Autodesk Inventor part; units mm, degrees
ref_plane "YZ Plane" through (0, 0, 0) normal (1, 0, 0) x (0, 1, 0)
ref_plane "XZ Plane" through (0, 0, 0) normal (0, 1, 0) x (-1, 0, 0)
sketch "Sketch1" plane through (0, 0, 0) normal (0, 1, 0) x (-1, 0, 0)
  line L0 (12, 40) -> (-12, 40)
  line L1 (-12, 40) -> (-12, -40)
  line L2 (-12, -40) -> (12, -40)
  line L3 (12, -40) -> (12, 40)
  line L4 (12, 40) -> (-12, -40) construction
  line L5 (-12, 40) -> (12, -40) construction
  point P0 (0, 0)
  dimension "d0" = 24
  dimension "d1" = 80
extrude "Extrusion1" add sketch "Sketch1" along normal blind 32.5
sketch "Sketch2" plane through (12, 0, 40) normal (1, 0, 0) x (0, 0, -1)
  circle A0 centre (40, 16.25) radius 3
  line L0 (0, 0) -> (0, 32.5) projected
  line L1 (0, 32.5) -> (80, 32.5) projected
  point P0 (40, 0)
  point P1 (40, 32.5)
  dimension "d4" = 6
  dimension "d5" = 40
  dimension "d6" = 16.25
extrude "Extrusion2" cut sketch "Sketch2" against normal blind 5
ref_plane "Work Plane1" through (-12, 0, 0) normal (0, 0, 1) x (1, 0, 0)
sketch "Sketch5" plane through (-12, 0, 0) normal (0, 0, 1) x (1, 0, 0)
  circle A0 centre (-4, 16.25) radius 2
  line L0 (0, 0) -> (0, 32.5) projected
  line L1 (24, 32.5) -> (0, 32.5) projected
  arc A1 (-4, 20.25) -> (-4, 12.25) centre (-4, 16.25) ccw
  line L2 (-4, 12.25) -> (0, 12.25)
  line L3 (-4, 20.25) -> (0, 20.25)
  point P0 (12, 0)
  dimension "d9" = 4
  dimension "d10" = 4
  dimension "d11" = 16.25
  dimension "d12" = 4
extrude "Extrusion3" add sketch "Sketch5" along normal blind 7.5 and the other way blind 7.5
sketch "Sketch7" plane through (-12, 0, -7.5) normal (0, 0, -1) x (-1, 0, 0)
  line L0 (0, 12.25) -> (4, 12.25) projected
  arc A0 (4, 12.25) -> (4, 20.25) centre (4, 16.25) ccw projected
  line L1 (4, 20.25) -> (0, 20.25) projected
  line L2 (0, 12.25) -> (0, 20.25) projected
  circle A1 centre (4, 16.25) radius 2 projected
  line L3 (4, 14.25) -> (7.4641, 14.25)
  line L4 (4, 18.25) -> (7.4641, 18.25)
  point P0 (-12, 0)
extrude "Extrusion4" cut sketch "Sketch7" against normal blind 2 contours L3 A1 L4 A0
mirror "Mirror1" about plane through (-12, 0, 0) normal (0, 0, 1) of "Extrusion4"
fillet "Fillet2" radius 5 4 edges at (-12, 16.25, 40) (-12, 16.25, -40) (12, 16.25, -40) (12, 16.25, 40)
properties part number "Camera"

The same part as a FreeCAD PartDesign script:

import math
import FreeCAD as App
import Part
import Sketcher
from FreeCAD import Vector


def edges_at(feature, points):
    """Names of the edges that pass closest to the given points."""
    edges = feature.Shape.Edges
    near = lambda p: min(range(len(edges)), key=lambda i: edges[i].distToShape(Part.Vertex(*p))[0])
    return sorted({f"Edge{near(p) + 1}" for p in points})


def add_polygon(sketch, points):
    """Adds a closed chain of lines whose ends are joined by coincident constraints."""
    first, n = sketch.GeometryCount, len(points)
    for a, b in zip(points, points[1:] + points[:1]):
        sketch.addGeometry(Part.LineSegment(App.Vector(*a, 0), App.Vector(*b, 0)), False)
    for i in range(n):
        sketch.addConstraint(Sketcher.Constraint("Coincident", first + i, 2, first + (i + 1) % n, 1))

doc = App.newDocument("Part")
params = doc.addObject("Spreadsheet::Sheet", "Params")
for row, (alias, value) in enumerate([
    ("sketch1_width", "24 mm"),
    ("sketch1_height", "80 mm"),
    ("pad1_length", "32.5 mm"),
    ("sketch2_diameter", "6 mm"),
    ("pocket1_length", "5 mm"),
    ("sketch3_diameter", "4 mm"),
    ("sketch3_radius", "4 mm"),
    ("sketch3_width", "4 mm"),
    ("pad2_length", "7.5 mm"),
    ("pad2_length2", "7.5 mm"),
    ("sketch4_radius", "4 mm"),
    ("sketch4_radius2", "2 mm"),
    ("pocket2_length", "2 mm"),
    ("fillet_radius", "5 mm"),
], start=1):
    params.set(f"A{row}", alias)
    params.set(f"B{row}", "=" + value)
    params.setAlias(f"B{row}", alias)

body = doc.addObject("PartDesign::Body", "Body")

# Sketch on XZ plane
sketch1 = body.newObject("Sketcher::SketchObject", "Sketch")
sketch1.AttachmentSupport = (doc.getObject("XZ_Plane"), [""])
sketch1.MapMode = "FlatFace"
add_polygon(sketch1, [(-12, -40), (-12, 40), (12, 40), (12, -40)])  # lines 0-3
sketch1.addConstraint(Sketcher.Constraint("Vertical", 0))
sketch1.addConstraint(Sketcher.Constraint("Horizontal", 1))
sketch1.addConstraint(Sketcher.Constraint("Vertical", 2))
sketch1.addConstraint(Sketcher.Constraint("Horizontal", 3))
sketch1.addConstraint(Sketcher.Constraint("Symmetric", 0, 2, 2, 2, -1, 1))
sketch1.addConstraint(Sketcher.Constraint("DistanceX", 1, 1, 1, 2, 24.0))
sketch1.addConstraint(Sketcher.Constraint("DistanceY", 0, 1, 0, 2, 80.0))
sketch1.setExpression("Constraints[9]", "Params.sketch1_width")
sketch1.setExpression("Constraints[10]", "Params.sketch1_height")
pad1 = body.newObject("PartDesign::Pad", "Pad")
pad1.Profile = sketch1
pad1.setExpression("Length", "Params.pad1_length")
pad1.Reversed = True

# Sketch on YZ plane
sketch2 = body.newObject("Sketcher::SketchObject", "Sketch001")
sketch2.AttachmentSupport = (doc.getObject("YZ_Plane"), [""])
sketch2.MapMode = "FlatFace"
sketch2.AttachmentOffset = App.Placement(Vector(0, 0, 12), App.Rotation())
sketch2.addGeometry(Part.Circle(Vector(16.2, 0, 0), Vector(0, 0, 1), 3), False)
sketch2.addConstraint(Sketcher.Constraint("PointOnObject", 0, 3, -1))
sketch2.addConstraint(Sketcher.Constraint("Diameter", 0, 6.0))
sketch2.addConstraint(Sketcher.Constraint("DistanceX", -1, 1, 0, 3, 16.25))
sketch2.setExpression("Constraints[1]", "Params.sketch2_diameter")
pocket1 = body.newObject("PartDesign::Pocket", "Pocket")
pocket1.Profile = sketch2
pocket1.setExpression("Length", "Params.pocket1_length")

# Sketch on XY plane
sketch3 = body.newObject("Sketcher::SketchObject", "Sketch002")
sketch3.AttachmentSupport = (doc.getObject("XY_Plane"), [""])
sketch3.MapMode = "FlatFace"
sketch3.addGeometry(Part.LineSegment(Vector(-16, 12.2, 0), Vector(-12, 12.2, 0)), False)
sketch3.addGeometry(Part.LineSegment(Vector(-12, 12.2, 0), Vector(-12, 20.2, 0)), False)
sketch3.addGeometry(Part.LineSegment(Vector(-12, 20.2, 0), Vector(-16, 20.2, 0)), False)
sketch3.addGeometry(Part.ArcOfCircle(Part.Circle(Vector(-16, 16.2, 0), Vector(0, 0, 1), 4), math.radians(90), math.radians(270)), False)
sketch3.addGeometry(Part.Circle(Vector(-16, 16.2, 0), Vector(0, 0, 1), 2), False)
sketch3.addConstraint(Sketcher.Constraint("Coincident", 0, 2, 1, 1))
sketch3.addConstraint(Sketcher.Constraint("Coincident", 1, 2, 2, 1))
sketch3.addConstraint(Sketcher.Constraint("Tangent", 2, 2, 3, 1))
sketch3.addConstraint(Sketcher.Constraint("Tangent", 3, 2, 0, 1))
sketch3.addConstraint(Sketcher.Constraint("Horizontal", 0))
sketch3.addConstraint(Sketcher.Constraint("Vertical", 1))
sketch3.addConstraint(Sketcher.Constraint("Horizontal", 2))
sketch3.addConstraint(Sketcher.Constraint("Coincident", 4, 3, 3, 3))
sketch3.addConstraint(Sketcher.Constraint("Diameter", 4, 4.0))
sketch3.addConstraint(Sketcher.Constraint("Radius", 3, 4.0))
sketch3.addConstraint(Sketcher.Constraint("DistanceX", 0, 1, 0, 2, 4.0))
sketch3.addConstraint(Sketcher.Constraint("DistanceY", -1, 1, 3, 3, 16.25))
sketch3.addConstraint(Sketcher.Constraint("DistanceX", 3, 3, -1, 1, 16.0))
sketch3.setExpression("Constraints[8]", "Params.sketch3_diameter")
sketch3.setExpression("Constraints[9]", "Params.sketch3_radius")
sketch3.setExpression("Constraints[10]", "Params.sketch3_width")
pad2 = body.newObject("PartDesign::Pad", "Pad001")
pad2.Profile = sketch3
pad2.Type = "TwoLengths"
pad2.setExpression("Length", "Params.pad2_length")
pad2.setExpression("Length2", "Params.pad2_length2")

# Sketch on XY plane
sketch4 = body.newObject("Sketcher::SketchObject", "Sketch003")
sketch4.AttachmentSupport = (doc.getObject("XY_Plane"), [""])
sketch4.MapMode = "FlatFace"
sketch4.AttachmentOffset = App.Placement(Vector(0, 0, -7.5), App.Rotation())
sketch4.addGeometry(Part.LineSegment(Vector(-16, 14.2, 0), Vector(-19.5, 14.2, 0)), False)
sketch4.addGeometry(Part.ArcOfCircle(Part.Circle(Vector(-16, 16.2, 0), Vector(0, 0, 1), 4), math.radians(150), math.radians(210)), False)
sketch4.addGeometry(Part.LineSegment(Vector(-19.5, 18.2, 0), Vector(-16, 18.2, 0)), False)
sketch4.addGeometry(Part.ArcOfCircle(Part.Circle(Vector(-16, 16.2, 0), Vector(0, 0, 1), 2), math.radians(90), math.radians(270)), False)
sketch4.addConstraint(Sketcher.Constraint("Coincident", 0, 2, 1, 2))
sketch4.addConstraint(Sketcher.Constraint("Coincident", 1, 1, 2, 1))
sketch4.addConstraint(Sketcher.Constraint("Tangent", 2, 2, 3, 1))
sketch4.addConstraint(Sketcher.Constraint("Tangent", 3, 2, 0, 1))
sketch4.addConstraint(Sketcher.Constraint("Horizontal", 0))
sketch4.addConstraint(Sketcher.Constraint("Horizontal", 2))
sketch4.addConstraint(Sketcher.Constraint("Coincident", 3, 3, 1, 3))
sketch4.addConstraint(Sketcher.Constraint("Radius", 1, 4.0))
sketch4.addConstraint(Sketcher.Constraint("Radius", 3, 2.0))
sketch4.addConstraint(Sketcher.Constraint("DistanceX", 1, 3, -1, 1, 16.0))
sketch4.addConstraint(Sketcher.Constraint("DistanceY", -1, 1, 1, 3, 16.25))
sketch4.setExpression("Constraints[7]", "Params.sketch4_radius")
sketch4.setExpression("Constraints[8]", "Params.sketch4_radius2")
pocket2 = body.newObject("PartDesign::Pocket", "Pocket001")
pocket2.Profile = sketch4
pocket2.setExpression("Length", "Params.pocket2_length")
pocket2.Reversed = True
doc.recompute()

mirrored = body.newObject("PartDesign::Mirrored", "Mirrored")
mirrored.Originals = [pocket2]
mirrored.MirrorPlane = (doc.getObject("XY_Plane"), [""])
body.Tip = mirrored
doc.recompute()

fillet = body.newObject("PartDesign::Fillet", "Fillet")
fillet.Base = (mirrored, edges_at(mirrored, [
    (-12, 16.25, 40),
    (-12, 16.25, -40),
    (12, 16.25, -40),
    (12, 16.25, 40),
]))
fillet.setExpression("Radius", "Params.fillet_radius")

doc.recompute()
